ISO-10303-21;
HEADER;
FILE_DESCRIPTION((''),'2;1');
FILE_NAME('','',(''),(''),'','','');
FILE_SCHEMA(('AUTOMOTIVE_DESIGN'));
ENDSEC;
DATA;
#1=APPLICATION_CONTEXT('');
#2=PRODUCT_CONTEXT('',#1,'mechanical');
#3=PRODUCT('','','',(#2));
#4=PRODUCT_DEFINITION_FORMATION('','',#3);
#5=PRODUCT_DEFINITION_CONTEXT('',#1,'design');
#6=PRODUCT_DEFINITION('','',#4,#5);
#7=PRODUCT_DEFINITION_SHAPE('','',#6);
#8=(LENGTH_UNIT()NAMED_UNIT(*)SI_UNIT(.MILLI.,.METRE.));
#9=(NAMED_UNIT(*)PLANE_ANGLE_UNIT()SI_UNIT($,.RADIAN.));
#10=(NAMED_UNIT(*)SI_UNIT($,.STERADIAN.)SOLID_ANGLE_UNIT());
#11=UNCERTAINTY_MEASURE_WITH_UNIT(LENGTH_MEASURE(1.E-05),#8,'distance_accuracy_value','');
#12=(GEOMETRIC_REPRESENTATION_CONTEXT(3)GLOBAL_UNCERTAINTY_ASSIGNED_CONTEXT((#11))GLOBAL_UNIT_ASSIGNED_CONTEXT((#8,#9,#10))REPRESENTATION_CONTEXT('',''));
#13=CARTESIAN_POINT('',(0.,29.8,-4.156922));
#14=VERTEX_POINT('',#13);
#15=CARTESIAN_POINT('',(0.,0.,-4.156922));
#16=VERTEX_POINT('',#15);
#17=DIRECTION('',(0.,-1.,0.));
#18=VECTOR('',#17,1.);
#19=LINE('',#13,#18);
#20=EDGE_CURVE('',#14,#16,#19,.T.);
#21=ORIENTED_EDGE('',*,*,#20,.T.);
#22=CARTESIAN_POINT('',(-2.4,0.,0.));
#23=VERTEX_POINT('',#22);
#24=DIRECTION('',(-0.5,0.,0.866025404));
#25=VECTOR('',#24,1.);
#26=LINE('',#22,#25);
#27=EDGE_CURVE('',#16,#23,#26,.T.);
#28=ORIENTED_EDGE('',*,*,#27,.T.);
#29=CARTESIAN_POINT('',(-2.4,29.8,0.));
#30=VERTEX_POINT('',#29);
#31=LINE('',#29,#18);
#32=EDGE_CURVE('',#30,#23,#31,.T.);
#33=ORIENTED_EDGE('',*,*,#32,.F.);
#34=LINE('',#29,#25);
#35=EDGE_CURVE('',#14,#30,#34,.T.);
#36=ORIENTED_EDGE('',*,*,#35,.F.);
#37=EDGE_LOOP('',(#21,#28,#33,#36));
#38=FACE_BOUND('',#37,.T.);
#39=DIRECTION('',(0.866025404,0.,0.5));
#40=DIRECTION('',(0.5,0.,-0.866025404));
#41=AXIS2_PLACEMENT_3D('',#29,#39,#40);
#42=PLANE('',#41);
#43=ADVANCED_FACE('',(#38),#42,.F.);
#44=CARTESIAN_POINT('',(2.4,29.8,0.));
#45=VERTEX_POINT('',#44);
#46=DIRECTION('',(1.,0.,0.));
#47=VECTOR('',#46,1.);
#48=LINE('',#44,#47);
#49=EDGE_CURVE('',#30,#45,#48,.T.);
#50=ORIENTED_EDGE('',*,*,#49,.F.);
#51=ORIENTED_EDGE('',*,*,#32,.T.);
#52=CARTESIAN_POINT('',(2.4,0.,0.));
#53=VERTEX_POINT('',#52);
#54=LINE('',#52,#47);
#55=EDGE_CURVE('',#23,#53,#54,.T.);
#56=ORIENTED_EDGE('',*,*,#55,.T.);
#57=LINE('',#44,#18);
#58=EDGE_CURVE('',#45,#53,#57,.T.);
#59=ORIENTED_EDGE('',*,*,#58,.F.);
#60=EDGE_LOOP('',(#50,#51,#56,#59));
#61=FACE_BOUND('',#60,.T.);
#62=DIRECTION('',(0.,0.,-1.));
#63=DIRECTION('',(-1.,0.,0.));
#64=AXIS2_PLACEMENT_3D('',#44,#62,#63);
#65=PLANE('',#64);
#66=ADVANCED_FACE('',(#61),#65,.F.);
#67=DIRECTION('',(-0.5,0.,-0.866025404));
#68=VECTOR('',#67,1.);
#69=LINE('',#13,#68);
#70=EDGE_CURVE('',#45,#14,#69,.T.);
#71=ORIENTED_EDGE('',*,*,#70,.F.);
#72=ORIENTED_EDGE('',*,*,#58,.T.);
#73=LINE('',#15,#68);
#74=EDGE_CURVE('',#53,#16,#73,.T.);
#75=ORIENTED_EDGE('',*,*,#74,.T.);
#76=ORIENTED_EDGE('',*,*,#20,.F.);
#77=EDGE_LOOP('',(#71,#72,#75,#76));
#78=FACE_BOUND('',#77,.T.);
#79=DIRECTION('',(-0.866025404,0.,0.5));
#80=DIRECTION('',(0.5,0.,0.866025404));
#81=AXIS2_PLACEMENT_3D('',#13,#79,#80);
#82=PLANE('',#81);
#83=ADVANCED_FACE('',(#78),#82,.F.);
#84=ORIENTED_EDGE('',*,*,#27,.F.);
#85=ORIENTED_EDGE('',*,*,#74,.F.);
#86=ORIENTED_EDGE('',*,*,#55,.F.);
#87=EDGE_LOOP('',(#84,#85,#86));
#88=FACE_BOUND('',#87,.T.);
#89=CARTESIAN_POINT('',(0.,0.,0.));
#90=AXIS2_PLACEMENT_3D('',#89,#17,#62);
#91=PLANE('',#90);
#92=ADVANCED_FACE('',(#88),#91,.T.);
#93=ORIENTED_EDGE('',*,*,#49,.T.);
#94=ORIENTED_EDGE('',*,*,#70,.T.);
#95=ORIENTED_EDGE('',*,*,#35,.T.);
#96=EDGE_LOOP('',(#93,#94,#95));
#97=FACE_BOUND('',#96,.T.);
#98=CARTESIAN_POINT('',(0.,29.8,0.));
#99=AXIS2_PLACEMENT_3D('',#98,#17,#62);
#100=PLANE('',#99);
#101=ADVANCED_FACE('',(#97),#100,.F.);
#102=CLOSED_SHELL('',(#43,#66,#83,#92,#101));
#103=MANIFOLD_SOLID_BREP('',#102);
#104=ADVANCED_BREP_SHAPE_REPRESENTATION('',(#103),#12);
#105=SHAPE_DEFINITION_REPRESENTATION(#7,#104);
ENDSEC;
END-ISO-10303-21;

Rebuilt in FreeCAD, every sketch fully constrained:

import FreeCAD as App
import Part
import Sketcher
from FreeCAD import Vector
Q = App.Units.Quantity


def add_polygon(sketch, points):
    """Adds a closed chain of lines whose ends are joined by coincident constraints."""
    first, n = sketch.GeometryCount, len(points)
    for a, b in zip(points, points[1:] + points[:1]):
        sketch.addGeometry(Part.LineSegment(App.Vector(*a, 0), App.Vector(*b, 0)), False)
    for i in range(n):
        sketch.addConstraint(Sketcher.Constraint("Coincident", first + i, 2, first + (i + 1) % n, 1))

doc = App.newDocument("Part")
params = doc.addObject("Spreadsheet::Sheet", "Params")
for row, (alias, value) in enumerate([
    ("sketch1_width", "4.8 mm"),
    ("pad1_length", "29.8 mm"),
], start=1):
    params.set(f"A{row}", alias)
    params.set(f"B{row}", "=" + value)
    params.setAlias(f"B{row}", alias)

body = doc.addObject("PartDesign::Body", "Body")

# Sketch on XZ plane
sketch1 = body.newObject("Sketcher::SketchObject", "Sketch")
sketch1.AttachmentSupport = (doc.getObject("XZ_Plane"), [""])
sketch1.MapMode = "FlatFace"
add_polygon(sketch1, [(0, -4.2), (-2.4, 0), (2.4, 0)])  # lines 0-2
sketch1.addConstraint(Sketcher.Constraint("Horizontal", 1))
sketch1.addConstraint(Sketcher.Constraint("Symmetric", 0, 2, 1, 2, -1, 1))
sketch1.addConstraint(Sketcher.Constraint("PointOnObject", 2, 2, -2))
sketch1.addConstraint(Sketcher.Constraint("Angle", 0, Q("120 deg")))
sketch1.addConstraint(Sketcher.Constraint("DistanceX", 1, 1, 1, 2, Q("4.8 mm")))
sketch1.setExpression("Constraints[7]", "Params.sketch1_width")
pad1 = body.newObject("PartDesign::Pad", "Pad")
pad1.Profile = sketch1
pad1.setExpression("Length", "Params.pad1_length")
pad1.Reversed = True

doc.recompute()
